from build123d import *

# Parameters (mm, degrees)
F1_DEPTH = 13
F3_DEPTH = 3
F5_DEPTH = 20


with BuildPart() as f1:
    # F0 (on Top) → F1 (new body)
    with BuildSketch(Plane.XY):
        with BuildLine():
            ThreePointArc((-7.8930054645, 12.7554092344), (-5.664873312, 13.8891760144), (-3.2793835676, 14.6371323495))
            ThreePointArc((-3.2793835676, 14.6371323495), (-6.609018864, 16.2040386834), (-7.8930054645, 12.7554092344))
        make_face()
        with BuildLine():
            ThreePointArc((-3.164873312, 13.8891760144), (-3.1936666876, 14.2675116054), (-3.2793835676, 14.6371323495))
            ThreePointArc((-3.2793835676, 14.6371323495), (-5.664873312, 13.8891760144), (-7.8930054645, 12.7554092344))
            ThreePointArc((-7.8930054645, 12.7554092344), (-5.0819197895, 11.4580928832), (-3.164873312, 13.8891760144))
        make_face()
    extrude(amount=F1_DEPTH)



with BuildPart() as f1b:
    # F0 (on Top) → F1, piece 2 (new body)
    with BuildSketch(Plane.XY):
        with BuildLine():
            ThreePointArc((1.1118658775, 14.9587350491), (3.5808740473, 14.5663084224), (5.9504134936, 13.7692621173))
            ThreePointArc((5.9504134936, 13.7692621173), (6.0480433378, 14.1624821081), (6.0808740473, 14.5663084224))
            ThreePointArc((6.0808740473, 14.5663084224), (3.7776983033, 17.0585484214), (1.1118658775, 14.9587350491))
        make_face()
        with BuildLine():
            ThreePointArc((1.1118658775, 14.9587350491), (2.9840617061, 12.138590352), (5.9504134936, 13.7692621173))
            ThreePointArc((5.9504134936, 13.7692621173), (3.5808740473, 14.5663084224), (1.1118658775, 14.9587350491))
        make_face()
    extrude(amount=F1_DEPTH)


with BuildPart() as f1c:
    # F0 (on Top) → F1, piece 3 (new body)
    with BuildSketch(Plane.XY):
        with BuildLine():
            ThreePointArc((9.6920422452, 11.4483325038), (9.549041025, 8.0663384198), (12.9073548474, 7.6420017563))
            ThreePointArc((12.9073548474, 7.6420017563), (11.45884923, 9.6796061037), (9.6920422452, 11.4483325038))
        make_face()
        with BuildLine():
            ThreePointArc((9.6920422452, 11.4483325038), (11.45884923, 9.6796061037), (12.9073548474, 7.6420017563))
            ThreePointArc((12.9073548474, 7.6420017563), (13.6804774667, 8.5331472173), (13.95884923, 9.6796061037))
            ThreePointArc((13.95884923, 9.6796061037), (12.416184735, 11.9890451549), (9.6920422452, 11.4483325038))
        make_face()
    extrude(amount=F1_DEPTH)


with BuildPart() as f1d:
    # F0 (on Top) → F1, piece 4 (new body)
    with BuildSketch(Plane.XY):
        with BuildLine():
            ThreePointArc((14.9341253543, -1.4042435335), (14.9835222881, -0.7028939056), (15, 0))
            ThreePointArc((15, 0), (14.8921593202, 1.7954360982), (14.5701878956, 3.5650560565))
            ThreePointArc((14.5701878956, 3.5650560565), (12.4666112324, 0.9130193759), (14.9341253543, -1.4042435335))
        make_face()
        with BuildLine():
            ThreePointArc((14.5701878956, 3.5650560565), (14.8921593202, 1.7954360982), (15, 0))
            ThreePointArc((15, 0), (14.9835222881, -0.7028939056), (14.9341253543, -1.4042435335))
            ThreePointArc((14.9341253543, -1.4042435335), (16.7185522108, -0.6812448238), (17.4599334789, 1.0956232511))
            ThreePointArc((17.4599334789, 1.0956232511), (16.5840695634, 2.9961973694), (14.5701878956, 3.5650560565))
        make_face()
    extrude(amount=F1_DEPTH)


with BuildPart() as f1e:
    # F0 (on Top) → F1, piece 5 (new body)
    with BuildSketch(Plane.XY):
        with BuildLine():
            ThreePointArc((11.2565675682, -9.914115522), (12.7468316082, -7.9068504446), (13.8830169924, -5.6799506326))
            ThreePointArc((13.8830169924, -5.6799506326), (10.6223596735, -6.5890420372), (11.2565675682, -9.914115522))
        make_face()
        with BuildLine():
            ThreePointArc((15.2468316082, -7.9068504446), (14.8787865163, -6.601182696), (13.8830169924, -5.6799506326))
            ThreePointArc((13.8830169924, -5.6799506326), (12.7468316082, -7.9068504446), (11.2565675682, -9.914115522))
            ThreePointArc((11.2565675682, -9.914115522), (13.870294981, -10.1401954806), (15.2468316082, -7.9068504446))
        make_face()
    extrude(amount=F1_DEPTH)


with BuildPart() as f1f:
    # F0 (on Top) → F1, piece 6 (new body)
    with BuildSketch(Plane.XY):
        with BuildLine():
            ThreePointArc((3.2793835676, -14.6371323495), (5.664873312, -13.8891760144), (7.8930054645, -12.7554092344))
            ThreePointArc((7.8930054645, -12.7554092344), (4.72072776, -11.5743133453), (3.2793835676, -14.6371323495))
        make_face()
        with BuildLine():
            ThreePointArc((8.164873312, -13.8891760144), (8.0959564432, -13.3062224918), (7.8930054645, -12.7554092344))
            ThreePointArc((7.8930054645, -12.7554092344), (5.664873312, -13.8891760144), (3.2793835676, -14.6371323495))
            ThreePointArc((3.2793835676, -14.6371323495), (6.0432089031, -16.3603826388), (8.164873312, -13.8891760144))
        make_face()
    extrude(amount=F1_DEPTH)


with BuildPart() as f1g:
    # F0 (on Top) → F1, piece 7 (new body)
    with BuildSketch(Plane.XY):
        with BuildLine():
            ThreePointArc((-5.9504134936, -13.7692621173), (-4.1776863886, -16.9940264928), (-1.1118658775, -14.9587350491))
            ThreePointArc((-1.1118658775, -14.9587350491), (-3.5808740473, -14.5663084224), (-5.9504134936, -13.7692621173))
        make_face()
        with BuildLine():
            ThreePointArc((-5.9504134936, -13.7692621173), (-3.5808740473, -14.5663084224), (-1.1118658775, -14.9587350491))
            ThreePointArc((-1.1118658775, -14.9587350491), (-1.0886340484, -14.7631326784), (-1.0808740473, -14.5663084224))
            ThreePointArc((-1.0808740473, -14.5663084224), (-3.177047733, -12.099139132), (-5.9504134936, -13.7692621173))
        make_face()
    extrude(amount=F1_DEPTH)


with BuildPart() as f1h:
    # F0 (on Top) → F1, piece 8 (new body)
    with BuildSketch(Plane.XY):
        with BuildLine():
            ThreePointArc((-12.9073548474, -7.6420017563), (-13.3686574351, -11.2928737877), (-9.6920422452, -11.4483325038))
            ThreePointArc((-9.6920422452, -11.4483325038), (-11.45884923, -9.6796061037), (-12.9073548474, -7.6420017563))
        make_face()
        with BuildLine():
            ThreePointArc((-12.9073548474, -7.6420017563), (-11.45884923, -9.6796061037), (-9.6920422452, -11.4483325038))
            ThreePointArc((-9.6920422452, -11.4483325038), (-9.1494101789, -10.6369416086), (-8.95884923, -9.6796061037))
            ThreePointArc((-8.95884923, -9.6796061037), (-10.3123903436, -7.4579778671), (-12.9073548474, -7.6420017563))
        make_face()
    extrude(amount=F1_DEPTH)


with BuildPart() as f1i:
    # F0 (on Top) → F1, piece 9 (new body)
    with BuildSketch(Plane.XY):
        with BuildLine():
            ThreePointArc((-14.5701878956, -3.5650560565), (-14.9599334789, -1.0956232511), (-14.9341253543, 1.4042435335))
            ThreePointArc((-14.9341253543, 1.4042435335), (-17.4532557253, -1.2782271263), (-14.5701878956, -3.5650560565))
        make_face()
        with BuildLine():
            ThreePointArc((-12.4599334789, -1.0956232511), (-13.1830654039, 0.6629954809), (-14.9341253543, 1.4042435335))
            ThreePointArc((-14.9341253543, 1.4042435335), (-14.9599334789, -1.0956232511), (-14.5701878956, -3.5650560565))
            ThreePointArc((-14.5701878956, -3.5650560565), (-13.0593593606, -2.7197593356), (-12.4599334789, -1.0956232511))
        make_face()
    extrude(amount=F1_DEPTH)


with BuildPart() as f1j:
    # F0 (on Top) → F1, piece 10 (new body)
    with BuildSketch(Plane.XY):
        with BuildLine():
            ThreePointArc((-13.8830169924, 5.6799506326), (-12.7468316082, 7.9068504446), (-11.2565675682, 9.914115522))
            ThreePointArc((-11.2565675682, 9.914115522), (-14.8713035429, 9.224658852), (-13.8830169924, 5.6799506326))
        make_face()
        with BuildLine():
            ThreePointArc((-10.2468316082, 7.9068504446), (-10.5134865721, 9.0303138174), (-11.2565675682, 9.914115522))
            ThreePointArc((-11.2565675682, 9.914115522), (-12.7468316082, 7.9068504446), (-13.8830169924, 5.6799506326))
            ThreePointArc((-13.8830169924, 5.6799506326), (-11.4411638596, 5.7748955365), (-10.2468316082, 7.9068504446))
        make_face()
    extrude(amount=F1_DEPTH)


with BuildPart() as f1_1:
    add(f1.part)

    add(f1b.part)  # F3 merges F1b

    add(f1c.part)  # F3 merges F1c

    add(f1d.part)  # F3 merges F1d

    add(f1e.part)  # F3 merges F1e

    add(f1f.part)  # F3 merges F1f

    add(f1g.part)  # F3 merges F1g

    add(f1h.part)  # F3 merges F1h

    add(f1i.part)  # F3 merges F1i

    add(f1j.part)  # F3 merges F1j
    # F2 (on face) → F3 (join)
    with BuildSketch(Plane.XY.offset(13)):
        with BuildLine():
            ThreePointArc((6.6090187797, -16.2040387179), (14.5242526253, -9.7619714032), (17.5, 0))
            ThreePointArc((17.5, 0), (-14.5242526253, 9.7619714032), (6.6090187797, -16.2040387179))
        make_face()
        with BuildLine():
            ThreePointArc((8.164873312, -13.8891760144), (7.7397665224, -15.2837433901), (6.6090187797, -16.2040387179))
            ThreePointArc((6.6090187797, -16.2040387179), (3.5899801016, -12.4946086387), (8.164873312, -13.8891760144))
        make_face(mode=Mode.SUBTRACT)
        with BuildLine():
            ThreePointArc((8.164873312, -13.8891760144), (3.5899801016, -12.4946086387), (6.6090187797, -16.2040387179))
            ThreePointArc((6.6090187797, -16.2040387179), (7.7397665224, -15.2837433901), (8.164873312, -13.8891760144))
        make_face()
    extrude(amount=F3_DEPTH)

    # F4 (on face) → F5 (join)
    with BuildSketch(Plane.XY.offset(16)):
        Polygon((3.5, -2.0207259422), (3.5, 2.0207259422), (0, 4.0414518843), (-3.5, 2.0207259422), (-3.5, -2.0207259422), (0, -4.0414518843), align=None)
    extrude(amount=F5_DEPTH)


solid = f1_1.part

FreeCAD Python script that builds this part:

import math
import FreeCAD as App
import Part
import Sketcher
Q = App.Units.Quantity

doc = App.newDocument("Part")
body = doc.addObject("PartDesign::Body", "Body")

sketch1 = doc.addObject("Sketcher::SketchObject", "Sketch")
body.addObject(sketch1)
sketch1.AttachmentSupport = (doc.XY_Plane, [""])
sketch1.MapMode = "FlatFace"
sketch1.addGeometry([
    Part.ArcOfCircle(Part.Circle(App.Vector(-5.664873, 13.889176, 0), App.Vector(0, 0, 1), 2.5), math.radians(17.408511), math.radians(206.968895)),
    Part.ArcOfCircle(Part.Circle(App.Vector(-5.664873, 13.889176, 0), App.Vector(0, 0, 1), 2.5), math.radians(-153.031105), math.radians(0)),
    Part.ArcOfCircle(Part.Circle(App.Vector(-5.664873, 13.889176, 0), App.Vector(0, 0, 1), 2.5), math.radians(0), math.radians(17.408511)),
], False)
sketch1.addConstraint([
    Sketcher.Constraint("Tangent", 0, 2, 1, 1),
    Sketcher.Constraint("Tangent", 1, 2, 2, 1),
    Sketcher.Constraint("Tangent", 2, 2, 0, 1),
    Sketcher.Constraint("Horizontal", 2, 3, 1, 2),
    Sketcher.Constraint("Radius", 0, 2.5),
    Sketcher.Constraint("DistanceY", -1, 1, 0, 2, 12.755409),
    Sketcher.Constraint("DistanceX", 2, 2, 1, 2, 0.11451),
    Sketcher.Constraint("DistanceX", 0, 2, 2, 2, 4.613622),
    Sketcher.Constraint("DistanceX", 0, 3, -1, 1, 5.664873),
])
pad1 = doc.addObject("PartDesign::Pad", "Pad")
body.addObject(pad1)
pad1.Profile = sketch1
pad1.Length = 13
body2 = doc.addObject("PartDesign::Body", "Body001")

sketch2 = doc.addObject("Sketcher::SketchObject", "Sketch001")
body2.addObject(sketch2)
sketch2.AttachmentSupport = (doc.getObject("XY_Plane001"), [""])
sketch2.MapMode = "FlatFace"
sketch2.addGeometry([
    Part.ArcOfCircle(Part.Circle(App.Vector(3.580874, 14.566308, 0), App.Vector(0, 0, 1), 2.5), math.radians(-18.591489), math.radians(0)),
    Part.ArcOfCircle(Part.Circle(App.Vector(3.580874, 14.566308, 0), App.Vector(0, 0, 1), 2.5), math.radians(0), math.radians(170.968895)),
    Part.ArcOfCircle(Part.Circle(App.Vector(3.580874, 14.566308, 0), App.Vector(0, 0, 1), 2.5), math.radians(170.968895), math.radians(341.408511)),
], False)
sketch2.addConstraint([
    Sketcher.Constraint("Tangent", 0, 2, 1, 1),
    Sketcher.Constraint("Tangent", 1, 2, 2, 1),
    Sketcher.Constraint("Tangent", 2, 2, 0, 1),
    Sketcher.Constraint("Horizontal", 2, 3, 0, 2),
    Sketcher.Constraint("Radius", 0, 2.5),
    Sketcher.Constraint("DistanceY", -1, 1, 0, 3, 14.566308),
    Sketcher.Constraint("DistanceX", 1, 2, 1, 3, 2.469008),
    Sketcher.Constraint("DistanceX", 2, 2, 0, 2, 0.130461),
    Sketcher.Constraint("DistanceX", -1, 1, 0, 3, 3.580874),
])
pad2 = doc.addObject("PartDesign::Pad", "Pad001")
body2.addObject(pad2)
pad2.Profile = sketch2
pad2.Length = 13
body3 = doc.addObject("PartDesign::Body", "Body002")

sketch3 = doc.addObject("Sketcher::SketchObject", "Sketch002")
body3.addObject(sketch3)
sketch3.AttachmentSupport = (doc.getObject("XY_Plane002"), [""])
sketch3.MapMode = "FlatFace"
sketch3.addGeometry([
    Part.ArcOfCircle(Part.Circle(App.Vector(11.458849, 9.679606, 0), App.Vector(0, 0, 1), 2.5), math.radians(134.968895), math.radians(305.408511)),
    Part.ArcOfCircle(Part.Circle(App.Vector(11.458849, 9.679606, 0), App.Vector(0, 0, 1), 2.5), math.radians(-54.591489), math.radians(0)),
    Part.ArcOfCircle(Part.Circle(App.Vector(11.458849, 9.679606, 0), App.Vector(0, 0, 1), 2.5), math.radians(0), math.radians(134.968895)),
], False)
sketch3.addConstraint([
    Sketcher.Constraint("Tangent", 0, 2, 1, 1),
    Sketcher.Constraint("Tangent", 1, 2, 2, 1),
    Sketcher.Constraint("Tangent", 2, 2, 0, 1),
    Sketcher.Constraint("Horizontal", 2, 3, 1, 2),
    Sketcher.Constraint("Radius", 0, 2.5),
    Sketcher.Constraint("DistanceY", -1, 1, 0, 2, 7.642002),
    Sketcher.Constraint("DistanceX", -1, 1, 0, 3, 11.458849),
    Sketcher.Constraint("DistanceY", 0, 2, 2, 2, 3.806331),
    Sketcher.Constraint("DistanceY", -1, 1, 0, 3, 9.679606),
])
pad3 = doc.addObject("PartDesign::Pad", "Pad002")
body3.addObject(pad3)
pad3.Profile = sketch3
pad3.Length = 13
body4 = doc.addObject("PartDesign::Body", "Body003")

sketch4 = doc.addObject("Sketcher::SketchObject", "Sketch003")
body4.addObject(sketch4)
sketch4.AttachmentSupport = (doc.getObject("XY_Plane003"), [""])
sketch4.MapMode = "FlatFace"
sketch4.addGeometry([
    Part.ArcOfCircle(Part.Circle(App.Vector(14.959933, 1.095623, 0), App.Vector(0, 0, 1), 2.5), math.radians(98.968895), math.radians(269.408511)),
    Part.ArcOfCircle(Part.Circle(App.Vector(14.959933, 1.095623, 0), App.Vector(0, 0, 1), 2.5), math.radians(-90.591489), math.radians(0)),
    Part.ArcOfCircle(Part.Circle(App.Vector(14.959933, 1.095623, 0), App.Vector(0, 0, 1), 2.5), math.radians(0), math.radians(98.968895)),
], False)
sketch4.addConstraint([
    Sketcher.Constraint("Tangent", 0, 2, 1, 1),
    Sketcher.Constraint("Tangent", 1, 2, 2, 1),
    Sketcher.Constraint("Tangent", 2, 2, 0, 1),
    Sketcher.Constraint("Horizontal", 2, 3, 1, 2),
    Sketcher.Constraint("Radius", 0, 2.5),
    Sketcher.Constraint("DistanceY", 0, 2, 2, 2, 4.9693),
    Sketcher.Constraint("DistanceX", 0, 2, 0, 3, 0.025808),
    Sketcher.Constraint("DistanceX", -1, 1, 0, 3, 14.959933),
    Sketcher.Constraint("DistanceY", -1, 1, 0, 3, 1.095623),
])
pad4 = doc.addObject("PartDesign::Pad", "Pad003")
body4.addObject(pad4)
pad4.Profile = sketch4
pad4.Length = 13
body5 = doc.addObject("PartDesign::Body", "Body004")

sketch5 = doc.addObject("Sketcher::SketchObject", "Sketch004")
body5.addObject(sketch5)
sketch5.AttachmentSupport = (doc.getObject("XY_Plane004"), [""])
sketch5.MapMode = "FlatFace"
sketch5.addGeometry([
    Part.ArcOfCircle(Part.Circle(App.Vector(12.746832, -7.90685, 0), App.Vector(0, 0, 1), 2.5), math.radians(62.968895), math.radians(233.408511)),
    Part.ArcOfCircle(Part.Circle(App.Vector(12.746832, -7.90685, 0), App.Vector(0, 0, 1), 2.5), math.radians(-126.591489), math.radians(0)),
    Part.ArcOfCircle(Part.Circle(App.Vector(12.746832, -7.90685, 0), App.Vector(0, 0, 1), 2.5), math.radians(0), math.radians(62.968895)),
], False)
sketch5.addConstraint([
    Sketcher.Constraint("Tangent", 0, 2, 1, 1),
    Sketcher.Constraint("Tangent", 1, 2, 2, 1),
    Sketcher.Constraint("Tangent", 2, 2, 0, 1),
    Sketcher.Constraint("Horizontal", 2, 3, 1, 2),
    Sketcher.Constraint("Radius", 0, 2.5),
    Sketcher.Constraint("DistanceY", 0, 3, 2, 2, 2.2269),
    Sketcher.Constraint("DistanceX", -1, 1, 0, 3, 12.746832),
    Sketcher.Constraint("DistanceY", 0, 3, -1, 1, 7.90685),
    Sketcher.Constraint("DistanceX", 0, 2, 2, 2, 2.626449),
])
pad5 = doc.addObject("PartDesign::Pad", "Pad004")
body5.addObject(pad5)
pad5.Profile = sketch5
pad5.Length = 13
body6 = doc.addObject("PartDesign::Body", "Body005")

sketch6 = doc.addObject("Sketcher::SketchObject", "Sketch005")
body6.addObject(sketch6)
sketch6.AttachmentSupport = (doc.getObject("XY_Plane005"), [""])
sketch6.MapMode = "FlatFace"
sketch6.addGeometry([
    Part.ArcOfCircle(Part.Circle(App.Vector(5.664873, -13.889176, 0), App.Vector(0, 0, 1), 2.5), math.radians(26.968895), math.radians(197.408511)),
    Part.ArcOfCircle(Part.Circle(App.Vector(5.664873, -13.889176, 0), App.Vector(0, 0, 1), 2.5), math.radians(-162.591489), math.radians(0)),
    Part.ArcOfCircle(Part.Circle(App.Vector(5.664873, -13.889176, 0), App.Vector(0, 0, 1), 2.5), math.radians(0), math.radians(26.968895)),
], False)
sketch6.addConstraint([
    Sketcher.Constraint("Tangent", 0, 2, 1, 1),
    Sketcher.Constraint("Tangent", 1, 2, 2, 1),
    Sketcher.Constraint("Tangent", 2, 2, 0, 1),
    Sketcher.Constraint("Horizontal", 2, 3, 1, 2),
    Sketcher.Constraint("Radius", 0, 2.5),
    Sketcher.Constraint("DistanceY", 2, 2, -1, 1, 12.755409),
    Sketcher.Constraint("DistanceX", 0, 2, 0, 3, 2.38549),
    Sketcher.Constraint("DistanceX", 0, 2, 2, 2, 4.613622),
    Sketcher.Constraint("DistanceX", -1, 1, 0, 3, 5.664873),
])
pad6 = doc.addObject("PartDesign::Pad", "Pad005")
body6.addObject(pad6)
pad6.Profile = sketch6
pad6.Length = 13
body7 = doc.addObject("PartDesign::Body", "Body006")

sketch7 = doc.addObject("Sketcher::SketchObject", "Sketch006")
body7.addObject(sketch7)
sketch7.AttachmentSupport = (doc.getObject("XY_Plane006"), [""])
sketch7.MapMode = "FlatFace"
sketch7.addGeometry([
    Part.ArcOfCircle(Part.Circle(App.Vector(-3.580874, -14.566308, 0), App.Vector(0, 0, 1), 2.5), math.radians(161.408511), math.radians(350.968895)),
    Part.ArcOfCircle(Part.Circle(App.Vector(-3.580874, -14.566308, 0), App.Vector(0, 0, 1), 2.5), math.radians(-9.031105), math.radians(0)),
    Part.ArcOfCircle(Part.Circle(App.Vector(-3.580874, -14.566308, 0), App.Vector(0, 0, 1), 2.5), math.radians(0), math.radians(161.408511)),
], False)
sketch7.addConstraint([
    Sketcher.Constraint("Tangent", 0, 2, 1, 1),
    Sketcher.Constraint("Tangent", 1, 2, 2, 1),
    Sketcher.Constraint("Tangent", 2, 2, 0, 1),
    Sketcher.Constraint("Horizontal", 2, 3, 1, 2),
    Sketcher.Constraint("Radius", 0, 2.5),
    Sketcher.Constraint("DistanceY", 0, 3, -1, 1, 14.566308),
    Sketcher.Constraint("DistanceX", 0, 3, 0, 2, 2.469008),
    Sketcher.Constraint("DistanceX", 2, 2, 1, 3, 2.369539),
    Sketcher.Constraint("DistanceX", 0, 3, -1, 1, 3.580874),
])
pad7 = doc.addObject("PartDesign::Pad", "Pad006")
body7.addObject(pad7)
pad7.Profile = sketch7
pad7.Length = 13
body8 = doc.addObject("PartDesign::Body", "Body007")

sketch8 = doc.addObject("Sketcher::SketchObject", "Sketch007")
body8.addObject(sketch8)
sketch8.AttachmentSupport = (doc.getObject("XY_Plane007"), [""])
sketch8.MapMode = "FlatFace"
sketch8.addGeometry([
    Part.ArcOfCircle(Part.Circle(App.Vector(-11.458849, -9.679606, 0), App.Vector(0, 0, 1), 2.5), math.radians(-45.031105), math.radians(0)),
    Part.ArcOfCircle(Part.Circle(App.Vector(-11.458849, -9.679606, 0), App.Vector(0, 0, 1), 2.5), math.radians(0), math.radians(314.968895)),
], False)
sketch8.addConstraint([
    Sketcher.Constraint("Tangent", 0, 1, 1, 2),
    Sketcher.Constraint("Coincident", 1, 1, 0, 2),
    Sketcher.Constraint("Horizontal", 0, 3, 1, 1),
    Sketcher.Constraint("Radius", 0, 2.5),
    Sketcher.Constraint("DistanceX", 0, 3, -1, 1, 11.458849),
    Sketcher.Constraint("DistanceY", 0, 3, -1, 1, 9.679606),
    Sketcher.Constraint("DistanceX", 0, 1, -1, 1, 9.692042),
])
pad8 = doc.addObject("PartDesign::Pad", "Pad007")
body8.addObject(pad8)
pad8.Profile = sketch8
pad8.Length = 13
body9 = doc.addObject("PartDesign::Body", "Body008")

sketch9 = doc.addObject("Sketcher::SketchObject", "Sketch008")
body9.addObject(sketch9)
sketch9.AttachmentSupport = (doc.getObject("XY_Plane008"), [""])
sketch9.MapMode = "FlatFace"
sketch9.addGeometry([
    Part.ArcOfCircle(Part.Circle(App.Vector(-14.959933, -1.095623, 0), App.Vector(0, 0, 1), 2.5), math.radians(89.408511), math.radians(278.968895)),
    Part.ArcOfCircle(Part.Circle(App.Vector(-14.959933, -1.095623, 0), App.Vector(0, 0, 1), 2.5), math.radians(-81.031105), math.radians(0)),
    Part.ArcOfCircle(Part.Circle(App.Vector(-14.959933, -1.095623, 0), App.Vector(0, 0, 1), 2.5), math.radians(0), math.radians(89.408511)),
], False)
sketch9.addConstraint([
    Sketcher.Constraint("Tangent", 0, 2, 1, 1),
    Sketcher.Constraint("Tangent", 1, 2, 2, 1),
    Sketcher.Constraint("Tangent", 2, 2, 0, 1),
    Sketcher.Constraint("Horizontal", 2, 3, 1, 2),
    Sketcher.Constraint("Radius", 0, 2.5),
    Sketcher.Constraint("DistanceY", 0, 2, 2, 2, 4.9693),
    Sketcher.Constraint("DistanceX", 0, 3, 2, 2, 0.025808),
    Sketcher.Constraint("DistanceX", 0, 3, -1, 1, 14.959933),
    Sketcher.Constraint("DistanceY", 0, 3, -1, 1, 1.095623),
])
pad9 = doc.addObject("PartDesign::Pad", "Pad008")
body9.addObject(pad9)
pad9.Profile = sketch9
pad9.Length = 13
body10 = doc.addObject("PartDesign::Body", "Body009")

sketch10 = doc.addObject("Sketcher::SketchObject", "Sketch009")
body10.addObject(sketch10)
sketch10.AttachmentSupport = (doc.getObject("XY_Plane009"), [""])
sketch10.MapMode = "FlatFace"
sketch10.addGeometry([
    Part.ArcOfCircle(Part.Circle(App.Vector(-12.746832, 7.90685, 0), App.Vector(0, 0, 1), 2.5), math.radians(53.408511), math.radians(242.968895)),
    Part.ArcOfCircle(Part.Circle(App.Vector(-12.746832, 7.90685, 0), App.Vector(0, 0, 1), 2.5), math.radians(-117.031105), math.radians(0)),
    Part.ArcOfCircle(Part.Circle(App.Vector(-12.746832, 7.90685, 0), App.Vector(0, 0, 1), 2.5), math.radians(0), math.radians(53.408511)),
], False)
sketch10.addConstraint([
    Sketcher.Constraint("Tangent", 0, 2, 1, 1),
    Sketcher.Constraint("Tangent", 1, 2, 2, 1),
    Sketcher.Constraint("Tangent", 2, 2, 0, 1),
    Sketcher.Constraint("Horizontal", 2, 3, 1, 2),
    Sketcher.Constraint("Radius", 0, 2.5),
    Sketcher.Constraint("DistanceY", 0, 2, 0, 3, 2.2269),
    Sketcher.Constraint("DistanceX", 0, 3, -1, 1, 12.746832),
    Sketcher.Constraint("DistanceY", -1, 1, 0, 3, 7.90685),
    Sketcher.Constraint("DistanceX", 0, 2, 2, 2, 2.626449),
])
pad10 = doc.addObject("PartDesign::Pad", "Pad009")
body10.addObject(pad10)
pad10.Profile = sketch10
pad10.Length = 13
body.AllowCompound = True
doc.recompute()

boolean = doc.addObject("PartDesign::Boolean", "Boolean")
body.addObject(boolean)
boolean.Type = "Fuse"
boolean.addObjects([body2])
doc.recompute()

boolean2 = doc.addObject("PartDesign::Boolean", "Boolean001")
body.addObject(boolean2)
boolean2.Type = "Fuse"
boolean2.addObjects([body3])
doc.recompute()

boolean3 = doc.addObject("PartDesign::Boolean", "Boolean002")
body.addObject(boolean3)
boolean3.Type = "Fuse"
boolean3.addObjects([body4])
doc.recompute()

boolean4 = doc.addObject("PartDesign::Boolean", "Boolean003")
body.addObject(boolean4)
boolean4.Type = "Fuse"
boolean4.addObjects([body5])
doc.recompute()

boolean5 = doc.addObject("PartDesign::Boolean", "Boolean004")
body.addObject(boolean5)
boolean5.Type = "Fuse"
boolean5.addObjects([body6])
doc.recompute()

boolean6 = doc.addObject("PartDesign::Boolean", "Boolean005")
body.addObject(boolean6)
boolean6.Type = "Fuse"
boolean6.addObjects([body7])
doc.recompute()

boolean7 = doc.addObject("PartDesign::Boolean", "Boolean006")
body.addObject(boolean7)
boolean7.Type = "Fuse"
boolean7.addObjects([body8])
doc.recompute()

boolean8 = doc.addObject("PartDesign::Boolean", "Boolean007")
body.addObject(boolean8)
boolean8.Type = "Fuse"
boolean8.addObjects([body9])
doc.recompute()

boolean9 = doc.addObject("PartDesign::Boolean", "Boolean008")
body.addObject(boolean9)
boolean9.Type = "Fuse"
boolean9.addObjects([body10])

sketch11 = doc.addObject("Sketcher::SketchObject", "Sketch010")
body.addObject(sketch11)
sketch11.AttachmentSupport = (doc.XY_Plane, [""])
sketch11.MapMode = "FlatFace"
sketch11.AttachmentOffset = App.Placement(App.Vector(0, 0, 13), App.Rotation())
sketch11.addGeometry([
    Part.ArcOfCircle(Part.Circle(App.Vector(0, 0, 0), App.Vector(0, 0, 1), 17.5), math.radians(-67.811298), math.radians(0)),
    Part.ArcOfCircle(Part.Circle(App.Vector(0, 0, 0), App.Vector(0, 0, 1), 17.5), math.radians(0), math.radians(292.188702)),
], False)
sketch11.addConstraint([
    Sketcher.Constraint("Tangent", 0, 1, 1, 2),
    Sketcher.Constraint("Coincident", 1, 1, 0, 2),
    Sketcher.Constraint("Coincident", 0, 3, -1, 1),
    Sketcher.Constraint("PointOnObject", 1, 1, -1),
    Sketcher.Constraint("Radius", 0, 17.5),
    Sketcher.Constraint("DistanceX", -1, 1, 0, 1, 6.609019),
])
pad11 = doc.addObject("PartDesign::Pad", "Pad010")
body.addObject(pad11)
pad11.Profile = sketch11
pad11.Length = 3

sketch12 = doc.addObject("Sketcher::SketchObject", "Sketch011")
body.addObject(sketch12)
sketch12.AttachmentSupport = (doc.XY_Plane, [""])
sketch12.MapMode = "FlatFace"
sketch12.AttachmentOffset = App.Placement(App.Vector(0, 0, 16), App.Rotation())
sketch12.addGeometry([
    Part.LineSegment(App.Vector(3.5, -2.020726, 0), App.Vector(3.5, 2.020726, 0)),
    Part.LineSegment(App.Vector(3.5, 2.020726, 0), App.Vector(0, 4.041452, 0)),
    Part.LineSegment(App.Vector(0, 4.041452, 0), App.Vector(-3.5, 2.020726, 0)),
    Part.LineSegment(App.Vector(-3.5, 2.020726, 0), App.Vector(-3.5, -2.020726, 0)),
    Part.LineSegment(App.Vector(-3.5, -2.020726, 0), App.Vector(0, -4.041452, 0)),
    Part.LineSegment(App.Vector(0, -4.041452, 0), App.Vector(3.5, -2.020726, 0)),
], False)
sketch12.addConstraint([
    Sketcher.Constraint("Coincident", 0, 2, 1, 1),
    Sketcher.Constraint("Coincident", 1, 2, 2, 1),
    Sketcher.Constraint("Coincident", 2, 2, 3, 1),
    Sketcher.Constraint("Coincident", 3, 2, 4, 1),
    Sketcher.Constraint("Coincident", 4, 2, 5, 1),
    Sketcher.Constraint("Coincident", 5, 2, 0, 1),
    Sketcher.Constraint("Vertical", 0),
    Sketcher.Constraint("Vertical", 3),
    Sketcher.Constraint("Symmetric", 0, 2, 3, 2, -1, 1),
    Sketcher.Constraint("Symmetric", 1, 2, 4, 2, -1, 1),
    Sketcher.Constraint("PointOnObject", 1, 2, -2),
    Sketcher.Constraint("Parallel", 2, 5),
    Sketcher.Constraint("Horizontal", 0, 2, 2, 2),
    Sketcher.Constraint("Angle", 1, Q("150 deg")),
    Sketcher.Constraint("DistanceX", 2, 2, 0, 2, 7.0),
    Sketcher.Constraint("DistanceY", 0, 1, 0, 2, 4.041452),
])
pad12 = doc.addObject("PartDesign::Pad", "Pad011")
body.addObject(pad12)
pad12.Profile = sketch12
pad12.Length = 20

doc.recompute()
